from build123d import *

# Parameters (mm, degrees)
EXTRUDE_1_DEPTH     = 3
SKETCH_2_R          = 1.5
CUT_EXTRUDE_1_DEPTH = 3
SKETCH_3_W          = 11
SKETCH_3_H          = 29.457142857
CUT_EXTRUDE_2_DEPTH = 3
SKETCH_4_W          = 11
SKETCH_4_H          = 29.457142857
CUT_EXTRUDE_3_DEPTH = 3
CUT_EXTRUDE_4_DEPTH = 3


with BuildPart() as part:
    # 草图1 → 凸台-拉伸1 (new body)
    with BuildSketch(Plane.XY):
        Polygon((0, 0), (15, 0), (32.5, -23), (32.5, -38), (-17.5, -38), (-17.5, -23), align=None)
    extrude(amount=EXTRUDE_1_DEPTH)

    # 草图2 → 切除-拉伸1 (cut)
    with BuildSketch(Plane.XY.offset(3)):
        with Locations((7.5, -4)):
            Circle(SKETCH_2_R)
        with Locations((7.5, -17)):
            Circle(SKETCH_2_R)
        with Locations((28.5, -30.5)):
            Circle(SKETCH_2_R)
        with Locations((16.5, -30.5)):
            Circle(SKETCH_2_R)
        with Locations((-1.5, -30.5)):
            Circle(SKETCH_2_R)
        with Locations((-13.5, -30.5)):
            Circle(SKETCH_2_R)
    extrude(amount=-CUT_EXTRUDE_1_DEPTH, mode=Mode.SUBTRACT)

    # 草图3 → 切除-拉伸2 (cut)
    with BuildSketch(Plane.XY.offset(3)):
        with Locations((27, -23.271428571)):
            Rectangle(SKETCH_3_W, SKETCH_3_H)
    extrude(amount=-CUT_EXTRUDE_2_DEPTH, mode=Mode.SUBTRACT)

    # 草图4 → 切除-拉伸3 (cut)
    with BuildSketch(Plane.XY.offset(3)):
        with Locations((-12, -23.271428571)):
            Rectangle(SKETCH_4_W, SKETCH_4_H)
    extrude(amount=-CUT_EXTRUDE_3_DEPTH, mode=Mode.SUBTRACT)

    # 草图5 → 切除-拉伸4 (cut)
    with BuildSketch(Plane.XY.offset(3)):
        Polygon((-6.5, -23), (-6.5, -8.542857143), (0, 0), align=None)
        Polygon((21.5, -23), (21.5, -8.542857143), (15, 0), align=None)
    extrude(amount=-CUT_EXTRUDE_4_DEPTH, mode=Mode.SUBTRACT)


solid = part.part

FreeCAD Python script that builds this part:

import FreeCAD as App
import Part
import Sketcher
from FreeCAD import Vector
Q = App.Units.Quantity


def add_polygon(sketch, points):
    """Adds a closed chain of lines whose ends are joined by coincident constraints."""
    first, n = sketch.GeometryCount, len(points)
    for a, b in zip(points, points[1:] + points[:1]):
        sketch.addGeometry(Part.LineSegment(App.Vector(*a, 0), App.Vector(*b, 0)), False)
    for i in range(n):
        sketch.addConstraint(Sketcher.Constraint("Coincident", first + i, 2, first + (i + 1) % n, 1))

doc = App.newDocument("Part")
params = doc.addObject("Spreadsheet::Sheet", "Params")
for row, (alias, value) in enumerate([
    ("sketch1_width", "15 mm"),
    ("sketch1_width2", "50 mm"),
    ("pad1_length", "3 mm"),
    ("sketch2_diameter", "3 mm"),
    ("pocket1_length", "3 mm"),
    ("sketch3_width", "11 mm"),
    ("pocket2_length", "3 mm"),
    ("sketch4_width", "11 mm"),
    ("pocket3_length", "3 mm"),
    ("pocket4_length", "3 mm"),
], start=1):
    params.set(f"A{row}", alias)
    params.set(f"B{row}", "=" + value)
    params.setAlias(f"B{row}", alias)

body = doc.addObject("PartDesign::Body", "Body")

# Sketch on XY plane
sketch1 = body.newObject("Sketcher::SketchObject", "Sketch")
sketch1.AttachmentSupport = (doc.getObject("XY_Plane"), [""])
sketch1.MapMode = "FlatFace"
add_polygon(sketch1, [(15, 0), (0, 0), (-18, -23), (-18, -38), (32, -38), (32, -23)])  # lines 0-5
sketch1.addConstraint([
    Sketcher.Constraint("Horizontal", 0),
    Sketcher.Constraint("Vertical", 2),
    Sketcher.Constraint("Horizontal", 3),
    Sketcher.Constraint("Vertical", 4),
    Sketcher.Constraint("Coincident", 0, 2, -1, 1),
    Sketcher.Constraint("Horizontal", 1, 2, 4, 2),
    Sketcher.Constraint("Equal", 0, 2),
    Sketcher.Constraint("Equal", 1, 5),
    Sketcher.Constraint("DistanceX", 0, 2, 0, 1, Q("15 mm")),
    Sketcher.Constraint("DistanceX", 3, 1, 3, 2, Q("50 mm")),
    Sketcher.Constraint("DistanceY", 1, 2, -1, 1, Q("23 mm")),
])
sketch1.setExpression("Constraints[14]", "Params.sketch1_width")
sketch1.setExpression("Constraints[15]", "Params.sketch1_width2")
pad1 = body.newObject("PartDesign::Pad", "Pad")
pad1.Profile = sketch1
pad1.setExpression("Length", "Params.pad1_length")

# Sketch on XY plane
sketch2 = body.newObject("Sketcher::SketchObject", "Sketch001")
sketch2.AttachmentSupport = (doc.getObject("XY_Plane"), [""])
sketch2.MapMode = "FlatFace"
sketch2.AttachmentOffset = App.Placement(Vector(0, 0, 3), App.Rotation())
sketch2.addGeometry([
    Part.Circle(Vector(7.5, -4, 0), Vector(0, 0, 1), 1.5),  # 0
    Part.Circle(Vector(7.5, -17, 0), Vector(0, 0, 1), 1.5),  # 1
    Part.Circle(Vector(28.5, -30.5, 0), Vector(0, 0, 1), 1.5),  # 2
    Part.Circle(Vector(16.5, -30.5, 0), Vector(0, 0, 1), 1.5),  # 3
    Part.Circle(Vector(-1.5, -30.5, 0), Vector(0, 0, 1), 1.5),  # 4
    Part.Circle(Vector(-13.5, -30.5, 0), Vector(0, 0, 1), 1.5),  # 5
], False)
sketch2.addConstraint([
    Sketcher.Constraint("Equal", 0, 1),
    Sketcher.Constraint("Equal", 1, 2),
    Sketcher.Constraint("Equal", 2, 3),
    Sketcher.Constraint("Equal", 3, 4),
    Sketcher.Constraint("Equal", 4, 5),
    Sketcher.Constraint("Horizontal", 2, 3, 3, 3),
    Sketcher.Constraint("Horizontal", 3, 3, 4, 3),
    Sketcher.Constraint("Horizontal", 4, 3, 5, 3),
    Sketcher.Constraint("Vertical", 0, 3, 1, 3),
    Sketcher.Constraint("Diameter", 0, Q("3 mm")),
    Sketcher.Constraint("DistanceY", 0, 3, -1, 1, Q("4 mm")),
    Sketcher.Constraint("DistanceY", 1, 3, -1, 1, Q("17 mm")),
    Sketcher.Constraint("DistanceX", 1, 3, 2, 3, Q("21 mm")),
    Sketcher.Constraint("DistanceX", 3, 3, 2, 3, Q("12 mm")),
    Sketcher.Constraint("DistanceX", 4, 3, 1, 3, Q("9 mm")),
    Sketcher.Constraint("DistanceX", 5, 3, 4, 3, Q("12 mm")),
    Sketcher.Constraint("DistanceX", -1, 1, 0, 3, Q("7.5 mm")),
    Sketcher.Constraint("DistanceY", 2, 3, -1, 1, Q("30.5 mm")),
])
sketch2.setExpression("Constraints[9]", "Params.sketch2_diameter")
pocket1 = body.newObject("PartDesign::Pocket", "Pocket")
pocket1.Profile = sketch2
pocket1.setExpression("Length", "Params.pocket1_length")

# Sketch on XY plane
sketch3 = body.newObject("Sketcher::SketchObject", "Sketch002")
sketch3.AttachmentSupport = (doc.getObject("XY_Plane"), [""])
sketch3.MapMode = "FlatFace"
sketch3.AttachmentOffset = App.Placement(Vector(0, 0, 3), App.Rotation())
add_polygon(sketch3, [(22, -9), (22, -38), (32, -38), (32, -9)])  # lines 0-3
sketch3.addConstraint([
    Sketcher.Constraint("Vertical", 0),
    Sketcher.Constraint("Horizontal", 1),
    Sketcher.Constraint("Vertical", 2),
    Sketcher.Constraint("Horizontal", 3),
    Sketcher.Constraint("DistanceX", 1, 1, 1, 2, Q("11 mm")),
    Sketcher.Constraint("DistanceY", 0, 2, -1, 1, Q("38 mm")),
    Sketcher.Constraint("DistanceX", -1, 1, 0, 2, Q("21.5 mm")),
    Sketcher.Constraint("DistanceY", 0, 2, 0, 1, Q("29.457143 mm")),
])
sketch3.setExpression("Constraints[8]", "Params.sketch3_width")
pocket2 = body.newObject("PartDesign::Pocket", "Pocket001")
pocket2.Profile = sketch3
pocket2.setExpression("Length", "Params.pocket2_length")

# Sketch on XY plane
sketch4 = body.newObject("Sketcher::SketchObject", "Sketch003")
sketch4.AttachmentSupport = (doc.getObject("XY_Plane"), [""])
sketch4.MapMode = "FlatFace"
sketch4.AttachmentOffset = App.Placement(Vector(0, 0, 3), App.Rotation())
add_polygon(sketch4, [(-18, -9), (-18, -38), (-6, -38), (-6, -9)])  # lines 0-3
sketch4.addConstraint([
    Sketcher.Constraint("Vertical", 0),
    Sketcher.Constraint("Horizontal", 1),
    Sketcher.Constraint("Vertical", 2),
    Sketcher.Constraint("Horizontal", 3),
    Sketcher.Constraint("DistanceX", 1, 1, 1, 2, Q("11 mm")),
    Sketcher.Constraint("DistanceY", 0, 2, -1, 1, Q("38 mm")),
    Sketcher.Constraint("DistanceX", 0, 2, -1, 1, Q("17.5 mm")),
    Sketcher.Constraint("DistanceY", 0, 2, 0, 1, Q("29.457143 mm")),
])
sketch4.setExpression("Constraints[8]", "Params.sketch4_width")
pocket3 = body.newObject("PartDesign::Pocket", "Pocket002")
pocket3.Profile = sketch4
pocket3.setExpression("Length", "Params.pocket3_length")

# Sketch on XY plane
sketch5 = body.newObject("Sketcher::SketchObject", "Sketch004")
sketch5.AttachmentSupport = (doc.getObject("XY_Plane"), [""])
sketch5.MapMode = "FlatFace"
sketch5.AttachmentOffset = App.Placement(Vector(0, 0, 3), App.Rotation())
add_polygon(sketch5, [(-6, -9), (-6, -23), (0, 0)])  # lines 0-2
add_polygon(sketch5, [(22, -23), (22, -9), (15, 0)])  # lines 3-5
sketch5.addConstraint([
    Sketcher.Constraint("Vertical", 0),
    Sketcher.Constraint("Vertical", 3),
    Sketcher.Constraint("Coincident", 1, 2, -1, 1),
    Sketcher.Constraint("PointOnObject", 4, 2, -1),
    Sketcher.Constraint("Horizontal", 2, 2, 3, 2),
    Sketcher.Constraint("Horizontal", 0, 2, 5, 2),
    Sketcher.Constraint("Equal", 2, 4),
    Sketcher.Constraint("DistanceY", 0, 2, -1, 1, Q("23 mm")),
    Sketcher.Constraint("DistanceX", -1, 1, 4, 2, Q("15 mm")),
    Sketcher.Constraint("DistanceX", 2, 2, 3, 2, Q("28 mm")),
    Sketcher.Constraint("DistanceY", 0, 2, 0, 1, Q("14.457143 mm")),
])
pocket4 = body.newObject("PartDesign::Pocket", "Pocket003")
pocket4.Profile = sketch5
pocket4.setExpression("Length", "Params.pocket4_length")

doc.recompute()
